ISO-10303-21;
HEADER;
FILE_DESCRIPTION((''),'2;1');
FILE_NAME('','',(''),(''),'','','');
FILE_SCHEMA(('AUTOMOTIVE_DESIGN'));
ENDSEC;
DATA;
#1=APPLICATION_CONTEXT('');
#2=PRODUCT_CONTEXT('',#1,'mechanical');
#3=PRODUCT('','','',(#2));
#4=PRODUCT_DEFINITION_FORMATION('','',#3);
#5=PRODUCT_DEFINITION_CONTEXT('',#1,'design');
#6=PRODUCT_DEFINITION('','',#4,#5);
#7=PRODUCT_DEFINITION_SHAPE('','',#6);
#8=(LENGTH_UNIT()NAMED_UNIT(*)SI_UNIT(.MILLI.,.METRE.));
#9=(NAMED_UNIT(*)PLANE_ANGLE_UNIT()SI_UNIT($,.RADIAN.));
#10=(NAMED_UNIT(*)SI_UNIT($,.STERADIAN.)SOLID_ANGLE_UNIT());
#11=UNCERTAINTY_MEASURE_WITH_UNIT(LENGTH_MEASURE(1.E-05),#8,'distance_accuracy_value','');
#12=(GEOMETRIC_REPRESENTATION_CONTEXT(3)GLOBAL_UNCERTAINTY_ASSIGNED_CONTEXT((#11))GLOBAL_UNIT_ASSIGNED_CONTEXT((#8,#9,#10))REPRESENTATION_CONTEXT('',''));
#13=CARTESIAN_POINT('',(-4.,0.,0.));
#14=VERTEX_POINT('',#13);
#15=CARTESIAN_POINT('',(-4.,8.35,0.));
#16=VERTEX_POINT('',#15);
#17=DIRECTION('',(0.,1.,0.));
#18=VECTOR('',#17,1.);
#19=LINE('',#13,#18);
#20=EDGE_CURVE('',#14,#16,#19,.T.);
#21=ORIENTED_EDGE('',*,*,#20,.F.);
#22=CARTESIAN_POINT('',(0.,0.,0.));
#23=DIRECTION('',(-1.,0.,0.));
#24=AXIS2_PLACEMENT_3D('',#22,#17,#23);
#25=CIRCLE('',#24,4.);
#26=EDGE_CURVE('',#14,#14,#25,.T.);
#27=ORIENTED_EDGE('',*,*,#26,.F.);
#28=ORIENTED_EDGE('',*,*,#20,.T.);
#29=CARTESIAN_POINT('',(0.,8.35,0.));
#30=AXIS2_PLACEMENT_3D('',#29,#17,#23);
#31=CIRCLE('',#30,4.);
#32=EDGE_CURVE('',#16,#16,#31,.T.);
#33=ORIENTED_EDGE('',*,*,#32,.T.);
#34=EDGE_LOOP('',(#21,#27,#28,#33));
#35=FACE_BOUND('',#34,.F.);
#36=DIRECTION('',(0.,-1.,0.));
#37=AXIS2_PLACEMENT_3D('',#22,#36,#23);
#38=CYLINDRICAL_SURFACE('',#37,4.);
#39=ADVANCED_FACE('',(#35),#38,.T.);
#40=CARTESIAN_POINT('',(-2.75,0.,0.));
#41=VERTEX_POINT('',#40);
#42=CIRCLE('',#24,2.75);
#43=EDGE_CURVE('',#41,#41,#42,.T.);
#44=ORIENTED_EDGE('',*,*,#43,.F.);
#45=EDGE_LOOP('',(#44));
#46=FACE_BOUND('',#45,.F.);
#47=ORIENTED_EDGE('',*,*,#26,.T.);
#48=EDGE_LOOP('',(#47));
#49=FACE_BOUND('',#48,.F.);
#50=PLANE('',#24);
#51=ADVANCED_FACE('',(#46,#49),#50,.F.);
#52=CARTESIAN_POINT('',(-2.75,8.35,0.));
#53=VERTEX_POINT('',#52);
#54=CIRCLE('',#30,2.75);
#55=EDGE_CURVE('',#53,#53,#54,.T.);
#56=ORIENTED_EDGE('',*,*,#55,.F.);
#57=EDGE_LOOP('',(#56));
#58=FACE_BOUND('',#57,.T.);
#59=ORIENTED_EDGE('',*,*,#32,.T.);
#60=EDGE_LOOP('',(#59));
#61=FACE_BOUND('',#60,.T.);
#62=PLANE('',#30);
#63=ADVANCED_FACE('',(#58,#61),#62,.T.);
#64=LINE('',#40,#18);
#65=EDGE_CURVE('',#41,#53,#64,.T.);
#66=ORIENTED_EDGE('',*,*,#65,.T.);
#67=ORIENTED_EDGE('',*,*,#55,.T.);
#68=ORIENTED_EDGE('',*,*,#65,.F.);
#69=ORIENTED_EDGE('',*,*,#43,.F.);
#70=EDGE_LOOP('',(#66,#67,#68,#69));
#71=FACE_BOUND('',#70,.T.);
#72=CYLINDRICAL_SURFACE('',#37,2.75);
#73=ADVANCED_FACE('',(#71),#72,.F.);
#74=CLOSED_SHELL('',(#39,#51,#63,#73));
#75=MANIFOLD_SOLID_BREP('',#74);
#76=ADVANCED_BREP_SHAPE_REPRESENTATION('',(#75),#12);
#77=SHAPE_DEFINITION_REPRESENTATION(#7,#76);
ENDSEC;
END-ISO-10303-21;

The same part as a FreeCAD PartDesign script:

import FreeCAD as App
import Part
import Sketcher
from FreeCAD import Vector
Q = App.Units.Quantity

doc = App.newDocument("Part")
body = doc.addObject("PartDesign::Body", "Body")

# Sketch on XZ plane
sketch1 = doc.addObject("Sketcher::SketchObject", "Sketch")
body.addObject(sketch1)
sketch1.AttachmentSupport = (doc.XZ_Plane, [""])
sketch1.MapMode = "FlatFace"
sketch1.addGeometry([
    Part.Circle(Vector(0, 0, 0), Vector(0, 0, 1), 4),
    Part.Circle(Vector(0, 0, 0), Vector(0, 0, 1), 2.75),
], False)
sketch1.addConstraint([
    Sketcher.Constraint("Coincident", 0, 3, -1, 1),
    Sketcher.Constraint("Coincident", 1, 3, -1, 1),
    Sketcher.Constraint("Diameter", 0, Q("8 mm")),
    Sketcher.Constraint("Diameter", 1, Q("5.5 mm")),
])
pad1 = doc.addObject("PartDesign::Pad", "Pad")
body.addObject(pad1)
pad1.Profile = sketch1
pad1.Length = 8.35
pad1.Reversed = True

doc.recompute()
